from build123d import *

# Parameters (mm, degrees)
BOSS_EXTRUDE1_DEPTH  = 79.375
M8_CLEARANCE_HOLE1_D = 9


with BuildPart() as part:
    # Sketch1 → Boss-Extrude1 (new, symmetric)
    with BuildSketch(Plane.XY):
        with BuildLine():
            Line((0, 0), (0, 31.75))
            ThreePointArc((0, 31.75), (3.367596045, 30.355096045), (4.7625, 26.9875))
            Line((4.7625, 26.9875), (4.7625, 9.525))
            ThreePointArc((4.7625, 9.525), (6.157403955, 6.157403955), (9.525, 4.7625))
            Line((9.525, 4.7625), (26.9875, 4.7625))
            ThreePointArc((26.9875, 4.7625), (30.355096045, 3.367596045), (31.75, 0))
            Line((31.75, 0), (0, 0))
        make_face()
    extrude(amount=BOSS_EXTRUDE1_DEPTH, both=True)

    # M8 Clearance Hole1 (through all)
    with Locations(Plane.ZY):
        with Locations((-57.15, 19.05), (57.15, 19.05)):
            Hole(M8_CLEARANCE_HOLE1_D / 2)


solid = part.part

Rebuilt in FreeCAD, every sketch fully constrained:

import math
import FreeCAD as App
import Part
import Sketcher
Q = App.Units.Quantity

doc = App.newDocument("Part")
body = doc.addObject("PartDesign::Body", "Body")

sketch1 = body.newObject("Sketcher::SketchObject", "Sketch")
sketch1.AttachmentSupport = (doc.getObject("XY_Plane"), [""])
sketch1.MapMode = "FlatFace"
sketch1.addGeometry(Part.LineSegment(App.Vector(0, 31.8, 0), App.Vector(0, 0, 0)), False)
sketch1.addGeometry(Part.LineSegment(App.Vector(0, 0, 0), App.Vector(31.8, 0, 0)), False)
sketch1.addGeometry(Part.ArcOfCircle(Part.Circle(App.Vector(27, 0, 0), App.Vector(0, 0, 1), 4.8), math.radians(0), math.radians(90)), False)
sketch1.addGeometry(Part.LineSegment(App.Vector(27, 4.8, 0), App.Vector(9.5, 4.8, 0)), False)
sketch1.addGeometry(Part.ArcOfCircle(Part.Circle(App.Vector(9.5, 9.5, 0), App.Vector(0, 0, 1), 4.8), math.radians(-180), math.radians(-90)), False)
sketch1.addGeometry(Part.LineSegment(App.Vector(4.8, 9.5, 0), App.Vector(4.8, 27, 0)), False)
sketch1.addGeometry(Part.ArcOfCircle(Part.Circle(App.Vector(0, 27, 0), App.Vector(0, 0, 1), 4.8), math.radians(0), math.radians(90)), False)
sketch1.addConstraint(Sketcher.Constraint("Coincident", 0, 2, 1, 1))
sketch1.addConstraint(Sketcher.Constraint("Coincident", 1, 2, 2, 1))
sketch1.addConstraint(Sketcher.Constraint("Tangent", 2, 2, 3, 1))
sketch1.addConstraint(Sketcher.Constraint("Tangent", 3, 2, 4, 2))
sketch1.addConstraint(Sketcher.Constraint("Tangent", 4, 1, 5, 1))
sketch1.addConstraint(Sketcher.Constraint("Tangent", 5, 2, 6, 1))
sketch1.addConstraint(Sketcher.Constraint("Coincident", 6, 2, 0, 1))
sketch1.addConstraint(Sketcher.Constraint("Vertical", 0))
sketch1.addConstraint(Sketcher.Constraint("Horizontal", 1))
sketch1.addConstraint(Sketcher.Constraint("Horizontal", 3))
sketch1.addConstraint(Sketcher.Constraint("Vertical", 5))
sketch1.addConstraint(Sketcher.Constraint("Coincident", 0, 2, -1, 1))
sketch1.addConstraint(Sketcher.Constraint("Equal", 2, 4))
sketch1.addConstraint(Sketcher.Constraint("Equal", 4, 6))
sketch1.addConstraint(Sketcher.Constraint("PointOnObject", 2, 3, -1))
sketch1.addConstraint(Sketcher.Constraint("PointOnObject", 6, 3, -2))
sketch1.addConstraint(Sketcher.Constraint("Equal", 1, 0))
sketch1.addConstraint(Sketcher.Constraint("Radius", 2, Q("0.1875 in")))
sketch1.addConstraint(Sketcher.Constraint("DistanceX", 1, 1, 1, 2, Q("1.25 in")))
pad1 = body.newObject("PartDesign::Pad", "Pad")
pad1.Profile = sketch1
pad1.Length = Q("6.25 in")
pad1.Midplane = True

sketch2 = body.newObject("Sketcher::SketchObject", "Sketch001")
sketch2.AttachmentSupport = (doc.getObject("YZ_Plane"), [""])
sketch2.MapMode = "FlatFace"
sketch2.addGeometry(Part.Circle(App.Vector(19.1, -57.1, 0), App.Vector(0, 0, 1), 4.5), False)
sketch2.addGeometry(Part.Circle(App.Vector(19.1, 57.1, 0), App.Vector(0, 0, 1), 4.5), False)
sketch2.addConstraint(Sketcher.Constraint("Equal", 0, 1))
sketch2.addConstraint(Sketcher.Constraint("Symmetric", 0, 3, 1, 3, -1))
sketch2.addConstraint(Sketcher.Constraint("DistanceY", 0, 3, 1, 3, Q("4.5 in")))
sketch2.addConstraint(Sketcher.Constraint("Diameter", 0, Q("9 mm")))
sketch2.addConstraint(Sketcher.Constraint("DistanceX", -1, 1, 0, 3, Q("0.75 in")))
doc.recompute()
hole = body.newObject("PartDesign::Hole", "Hole")
hole.Profile = sketch2
hole.ThreadType = "None"
hole.Diameter = 9
hole.DepthType = "ThroughAll"
hole.Reversed = True

doc.recompute()
